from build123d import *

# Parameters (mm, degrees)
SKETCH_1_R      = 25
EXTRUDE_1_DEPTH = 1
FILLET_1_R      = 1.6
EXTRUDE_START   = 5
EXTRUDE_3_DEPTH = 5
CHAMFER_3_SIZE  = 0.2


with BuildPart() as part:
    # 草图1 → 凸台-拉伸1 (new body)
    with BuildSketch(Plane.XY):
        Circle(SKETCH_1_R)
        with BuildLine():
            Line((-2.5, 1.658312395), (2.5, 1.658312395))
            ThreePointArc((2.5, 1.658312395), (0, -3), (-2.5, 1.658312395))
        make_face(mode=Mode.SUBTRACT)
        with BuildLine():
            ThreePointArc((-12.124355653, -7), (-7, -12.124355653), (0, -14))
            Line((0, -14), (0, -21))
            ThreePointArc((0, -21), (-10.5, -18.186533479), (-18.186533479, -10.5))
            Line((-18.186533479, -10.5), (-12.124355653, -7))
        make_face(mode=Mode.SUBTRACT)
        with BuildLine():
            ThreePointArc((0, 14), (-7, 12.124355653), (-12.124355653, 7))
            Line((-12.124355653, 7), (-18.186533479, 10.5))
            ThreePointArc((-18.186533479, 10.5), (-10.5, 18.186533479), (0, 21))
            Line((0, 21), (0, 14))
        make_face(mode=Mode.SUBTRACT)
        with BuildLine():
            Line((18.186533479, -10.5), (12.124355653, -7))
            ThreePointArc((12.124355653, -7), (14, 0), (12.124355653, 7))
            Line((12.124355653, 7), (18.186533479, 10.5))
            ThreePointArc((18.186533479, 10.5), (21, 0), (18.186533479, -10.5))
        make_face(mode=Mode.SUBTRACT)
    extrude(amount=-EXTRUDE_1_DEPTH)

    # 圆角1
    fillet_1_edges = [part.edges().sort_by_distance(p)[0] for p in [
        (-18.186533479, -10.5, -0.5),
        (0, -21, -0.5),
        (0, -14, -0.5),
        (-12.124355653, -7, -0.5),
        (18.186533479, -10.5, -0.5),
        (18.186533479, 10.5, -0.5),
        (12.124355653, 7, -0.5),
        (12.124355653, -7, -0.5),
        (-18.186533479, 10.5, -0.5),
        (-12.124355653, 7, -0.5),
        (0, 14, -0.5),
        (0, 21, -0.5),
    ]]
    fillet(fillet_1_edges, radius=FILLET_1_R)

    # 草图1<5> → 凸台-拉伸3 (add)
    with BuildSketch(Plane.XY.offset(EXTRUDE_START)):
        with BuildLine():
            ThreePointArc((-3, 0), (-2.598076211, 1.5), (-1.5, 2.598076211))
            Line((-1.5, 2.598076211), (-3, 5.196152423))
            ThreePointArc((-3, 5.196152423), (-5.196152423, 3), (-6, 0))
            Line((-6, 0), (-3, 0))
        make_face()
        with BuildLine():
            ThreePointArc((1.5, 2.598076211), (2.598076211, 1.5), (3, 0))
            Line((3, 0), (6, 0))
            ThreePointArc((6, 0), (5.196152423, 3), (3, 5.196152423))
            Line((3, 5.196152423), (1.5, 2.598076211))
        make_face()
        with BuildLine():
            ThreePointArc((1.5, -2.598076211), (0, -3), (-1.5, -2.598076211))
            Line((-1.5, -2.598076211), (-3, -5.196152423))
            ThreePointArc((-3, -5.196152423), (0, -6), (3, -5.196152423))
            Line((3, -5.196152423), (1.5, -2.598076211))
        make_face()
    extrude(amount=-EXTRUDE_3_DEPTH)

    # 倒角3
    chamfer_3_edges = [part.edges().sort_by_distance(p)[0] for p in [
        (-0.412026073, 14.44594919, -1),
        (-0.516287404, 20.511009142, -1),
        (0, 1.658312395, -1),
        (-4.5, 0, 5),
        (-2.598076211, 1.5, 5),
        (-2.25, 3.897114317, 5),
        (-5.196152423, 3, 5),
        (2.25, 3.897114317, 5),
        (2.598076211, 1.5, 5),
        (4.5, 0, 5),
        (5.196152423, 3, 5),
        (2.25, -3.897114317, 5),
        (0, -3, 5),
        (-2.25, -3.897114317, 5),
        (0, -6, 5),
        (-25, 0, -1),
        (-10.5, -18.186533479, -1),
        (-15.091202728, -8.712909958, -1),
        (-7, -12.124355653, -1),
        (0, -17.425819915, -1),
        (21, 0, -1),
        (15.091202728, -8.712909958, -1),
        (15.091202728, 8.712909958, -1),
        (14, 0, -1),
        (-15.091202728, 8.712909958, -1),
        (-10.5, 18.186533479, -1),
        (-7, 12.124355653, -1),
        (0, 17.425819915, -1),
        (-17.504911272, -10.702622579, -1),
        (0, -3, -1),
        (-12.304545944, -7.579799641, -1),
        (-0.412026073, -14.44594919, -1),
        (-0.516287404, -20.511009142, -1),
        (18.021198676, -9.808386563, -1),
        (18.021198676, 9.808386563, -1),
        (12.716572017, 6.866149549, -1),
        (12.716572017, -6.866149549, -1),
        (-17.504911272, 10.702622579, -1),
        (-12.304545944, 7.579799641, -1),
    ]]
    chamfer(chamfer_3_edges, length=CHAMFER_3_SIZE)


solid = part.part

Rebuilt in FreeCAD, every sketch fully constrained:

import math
import FreeCAD as App
import Part
import Sketcher
Q = App.Units.Quantity


def edges_at(feature, points):
    """Names of the edges that pass closest to the given points."""
    edges = feature.Shape.Edges
    near = lambda p: min(range(len(edges)), key=lambda i: edges[i].distToShape(Part.Vertex(*p))[0])
    return sorted({f"Edge{near(p) + 1}" for p in points})

doc = App.newDocument("Part")
body = doc.addObject("PartDesign::Body", "Body")

sketch1 = body.newObject("Sketcher::SketchObject", "Sketch")
sketch1.AttachmentSupport = (doc.getObject("XY_Plane"), [""])
sketch1.MapMode = "FlatFace"
sketch1.addGeometry(Part.Circle(App.Vector(0, 0, 0), App.Vector(0, 0, 1), 25), False)
sketch1.addGeometry(Part.LineSegment(App.Vector(-18.2, -10.5, 0), App.Vector(-12.1, -7, 0)), False)
sketch1.addGeometry(Part.ArcOfCircle(Part.Circle(App.Vector(0, 0, 0), App.Vector(0, 0, 1), 14), math.radians(-150), math.radians(-90)), False)
sketch1.addGeometry(Part.LineSegment(App.Vector(0, -14, 0), App.Vector(0, -21, 0)), False)
sketch1.addGeometry(Part.ArcOfCircle(Part.Circle(App.Vector(0, 0, 0), App.Vector(0, 0, 1), 21), math.radians(-150), math.radians(-90)), False)
sketch1.addGeometry(Part.ArcOfCircle(Part.Circle(App.Vector(0, 0, 0), App.Vector(0, 0, 1), 3), math.radians(146), math.radians(394)), False)
sketch1.addGeometry(Part.LineSegment(App.Vector(-2.5, 1.7, 0), App.Vector(2.5, 1.7, 0)), False)
sketch1.addGeometry(Part.LineSegment(App.Vector(0, 21, 0), App.Vector(0, 14, 0)), False)
sketch1.addGeometry(Part.ArcOfCircle(Part.Circle(App.Vector(0, 0, 0), App.Vector(0, 0, 1), 14), math.radians(90), math.radians(150)), False)
sketch1.addGeometry(Part.LineSegment(App.Vector(-12.1, 7, 0), App.Vector(-18.2, 10.5, 0)), False)
sketch1.addGeometry(Part.ArcOfCircle(Part.Circle(App.Vector(0, 0, 0), App.Vector(0, 0, 1), 21), math.radians(90), math.radians(150)), False)
sketch1.addGeometry(Part.ArcOfCircle(Part.Circle(App.Vector(0, 0, 0), App.Vector(0, 0, 1), 21), math.radians(-30), math.radians(30)), False)
sketch1.addGeometry(Part.LineSegment(App.Vector(18.2, -10.5, 0), App.Vector(12.1, -7, 0)), False)
sketch1.addGeometry(Part.ArcOfCircle(Part.Circle(App.Vector(0, 0, 0), App.Vector(0, 0, 1), 14), math.radians(-30), math.radians(30)), False)
sketch1.addGeometry(Part.LineSegment(App.Vector(12.1, 7, 0), App.Vector(18.2, 10.5, 0)), False)
sketch1.addConstraint(Sketcher.Constraint("Coincident", 1, 2, 2, 1))
sketch1.addConstraint(Sketcher.Constraint("Coincident", 2, 2, 3, 1))
sketch1.addConstraint(Sketcher.Constraint("Coincident", 3, 2, 4, 2))
sketch1.addConstraint(Sketcher.Constraint("Coincident", 4, 1, 1, 1))
sketch1.addConstraint(Sketcher.Constraint("Coincident", 5, 1, 6, 1))
sketch1.addConstraint(Sketcher.Constraint("Coincident", 6, 2, 5, 2))
sketch1.addConstraint(Sketcher.Constraint("Coincident", 7, 2, 8, 1))
sketch1.addConstraint(Sketcher.Constraint("Coincident", 8, 2, 9, 1))
sketch1.addConstraint(Sketcher.Constraint("Coincident", 9, 2, 10, 2))
sketch1.addConstraint(Sketcher.Constraint("Coincident", 10, 1, 7, 1))
sketch1.addConstraint(Sketcher.Constraint("Coincident", 11, 1, 12, 1))
sketch1.addConstraint(Sketcher.Constraint("Coincident", 12, 2, 13, 1))
sketch1.addConstraint(Sketcher.Constraint("Coincident", 13, 2, 14, 1))
sketch1.addConstraint(Sketcher.Constraint("Coincident", 14, 2, 11, 2))
sketch1.addConstraint(Sketcher.Constraint("Vertical", 3))
sketch1.addConstraint(Sketcher.Constraint("Horizontal", 6))
sketch1.addConstraint(Sketcher.Constraint("Vertical", 7))
sketch1.addConstraint(Sketcher.Constraint("Coincident", 0, 3, -1, 1))
sketch1.addConstraint(Sketcher.Constraint("Coincident", 2, 3, -1, 1))
sketch1.addConstraint(Sketcher.Constraint("Coincident", 4, 3, -1, 1))
sketch1.addConstraint(Sketcher.Constraint("Coincident", 5, 3, -1, 1))
sketch1.addConstraint(Sketcher.Constraint("Coincident", 8, 3, -1, 1))
sketch1.addConstraint(Sketcher.Constraint("Coincident", 10, 3, -1, 1))
sketch1.addConstraint(Sketcher.Constraint("Coincident", 11, 3, -1, 1))
sketch1.addConstraint(Sketcher.Constraint("Coincident", 13, 3, -1, 1))
sketch1.addConstraint(Sketcher.Constraint("Equal", 2, 8))
sketch1.addConstraint(Sketcher.Constraint("Equal", 4, 10))
sketch1.addConstraint(Sketcher.Constraint("Equal", 10, 11))
sketch1.addConstraint(Sketcher.Constraint("Equal", 8, 13))
sketch1.addConstraint(Sketcher.Constraint("PointOnObject", 2, 2, -2))
sketch1.addConstraint(Sketcher.Constraint("PointOnObject", 7, 2, -2))
sketch1.addConstraint(Sketcher.Constraint("Parallel", 9, 12))
sketch1.addConstraint(Sketcher.Constraint("Parallel", 1, 14))
sketch1.addConstraint(Sketcher.Constraint("Horizontal", 4, 1, 11, 1))
sketch1.addConstraint(Sketcher.Constraint("Horizontal", 1, 2, 12, 2))
sketch1.addConstraint(Sketcher.Constraint("Horizontal", 8, 2, 13, 2))
sketch1.addConstraint(Sketcher.Constraint("Vertical", 1, 2, 8, 2))
sketch1.addConstraint(Sketcher.Constraint("Diameter", 0, Q("50 mm")))
sketch1.addConstraint(Sketcher.Constraint("Radius", 2, Q("14 mm")))
sketch1.addConstraint(Sketcher.Constraint("Radius", 4, Q("21 mm")))
sketch1.addConstraint(Sketcher.Constraint("Radius", 5, Q("3 mm")))
sketch1.addConstraint(Sketcher.Constraint("DistanceX", 6, 1, 6, 2, Q("5 mm")))
sketch1.addConstraint(Sketcher.Constraint("Angle", 1, Q("30 deg")))
sketch1.addConstraint(Sketcher.Constraint("DistanceY", 1, 2, -1, 1, Q("7 mm")))
pad1 = body.newObject("PartDesign::Pad", "Pad")
pad1.Profile = sketch1
pad1.Length = 1
pad1.Reversed = True
doc.recompute()

fillet = body.newObject("PartDesign::Fillet", "Fillet")
fillet.Base = (pad1, edges_at(pad1, [
    (-18.187, -10.5, -0.5),
    (0, -21, -0.5),
    (0, -14, -0.5),
    (-12.124, -7, -0.5),
    (18.187, -10.5, -0.5),
    (18.187, 10.5, -0.5),
    (12.124, 7, -0.5),
    (12.124, -7, -0.5),
    (-18.187, 10.5, -0.5),
    (-12.124, 7, -0.5),
    (0, 14, -0.5),
    (0, 21, -0.5),
]))
fillet.Radius = 1.6

sketch2 = body.newObject("Sketcher::SketchObject", "Sketch001")
sketch2.AttachmentSupport = (doc.getObject("XY_Plane"), [""])
sketch2.MapMode = "FlatFace"
sketch2.AttachmentOffset = App.Placement(App.Vector(0, 0, 5), App.Rotation())
sketch2.addGeometry(Part.ArcOfCircle(Part.Circle(App.Vector(0, 0, 0), App.Vector(0, 0, 1), 3), math.radians(120), math.radians(180)), False)
sketch2.addGeometry(Part.LineSegment(App.Vector(-1.5, 2.6, 0), App.Vector(-3, 5.2, 0)), False)
sketch2.addGeometry(Part.ArcOfCircle(Part.Circle(App.Vector(0, 0, 0), App.Vector(0, 0, 1), 6), math.radians(120), math.radians(180)), False)
sketch2.addGeometry(Part.LineSegment(App.Vector(-6, 0, 0), App.Vector(-3, 0, 0)), False)
sketch2.addGeometry(Part.ArcOfCircle(Part.Circle(App.Vector(0, 0, 0), App.Vector(0, 0, 1), 3), math.radians(0), math.radians(60)), False)
sketch2.addGeometry(Part.LineSegment(App.Vector(3, 0, 0), App.Vector(6, 0, 0)), False)
sketch2.addGeometry(Part.ArcOfCircle(Part.Circle(App.Vector(0, 0, 0), App.Vector(0, 0, 1), 6), math.radians(0), math.radians(60)), False)
sketch2.addGeometry(Part.LineSegment(App.Vector(3, 5.2, 0), App.Vector(1.5, 2.6, 0)), False)
sketch2.addGeometry(Part.ArcOfCircle(Part.Circle(App.Vector(0, 0, 0), App.Vector(0, 0, 1), 3), math.radians(-120), math.radians(-60)), False)
sketch2.addGeometry(Part.LineSegment(App.Vector(-1.5, -2.6, 0), App.Vector(-3, -5.2, 0)), False)
sketch2.addGeometry(Part.ArcOfCircle(Part.Circle(App.Vector(0, 0, 0), App.Vector(0, 0, 1), 6), math.radians(-120), math.radians(-60)), False)
sketch2.addGeometry(Part.LineSegment(App.Vector(3, -5.2, 0), App.Vector(1.5, -2.6, 0)), False)
sketch2.addConstraint(Sketcher.Constraint("Coincident", 0, 1, 1, 1))
sketch2.addConstraint(Sketcher.Constraint("Coincident", 1, 2, 2, 1))
sketch2.addConstraint(Sketcher.Constraint("Coincident", 2, 2, 3, 1))
sketch2.addConstraint(Sketcher.Constraint("Coincident", 3, 2, 0, 2))
sketch2.addConstraint(Sketcher.Constraint("Coincident", 4, 1, 5, 1))
sketch2.addConstraint(Sketcher.Constraint("Coincident", 5, 2, 6, 1))
sketch2.addConstraint(Sketcher.Constraint("Coincident", 6, 2, 7, 1))
sketch2.addConstraint(Sketcher.Constraint("Coincident", 7, 2, 4, 2))
sketch2.addConstraint(Sketcher.Constraint("Coincident", 8, 1, 9, 1))
sketch2.addConstraint(Sketcher.Constraint("Coincident", 9, 2, 10, 1))
sketch2.addConstraint(Sketcher.Constraint("Coincident", 10, 2, 11, 1))
sketch2.addConstraint(Sketcher.Constraint("Coincident", 11, 2, 8, 2))
sketch2.addConstraint(Sketcher.Constraint("Horizontal", 3))
sketch2.addConstraint(Sketcher.Constraint("Horizontal", 5))
sketch2.addConstraint(Sketcher.Constraint("Coincident", 0, 3, -1, 1))
sketch2.addConstraint(Sketcher.Constraint("Coincident", 2, 3, -1, 1))
sketch2.addConstraint(Sketcher.Constraint("Coincident", 4, 3, -1, 1))
sketch2.addConstraint(Sketcher.Constraint("Coincident", 6, 3, -1, 1))
sketch2.addConstraint(Sketcher.Constraint("Coincident", 8, 3, -1, 1))
sketch2.addConstraint(Sketcher.Constraint("Coincident", 10, 3, -1, 1))
sketch2.addConstraint(Sketcher.Constraint("Equal", 0, 4))
sketch2.addConstraint(Sketcher.Constraint("Equal", 2, 6))
sketch2.addConstraint(Sketcher.Constraint("Equal", 4, 8))
sketch2.addConstraint(Sketcher.Constraint("Equal", 6, 10))
sketch2.addConstraint(Sketcher.Constraint("PointOnObject", 2, 2, -1))
sketch2.addConstraint(Sketcher.Constraint("PointOnObject", 4, 1, -1))
sketch2.addConstraint(Sketcher.Constraint("Parallel", 7, 9))
sketch2.addConstraint(Sketcher.Constraint("Parallel", 1, 11))
sketch2.addConstraint(Sketcher.Constraint("Horizontal", 1, 2, 6, 2))
sketch2.addConstraint(Sketcher.Constraint("Horizontal", 0, 1, 7, 2))
sketch2.addConstraint(Sketcher.Constraint("Horizontal", 9, 2, 10, 2))
sketch2.addConstraint(Sketcher.Constraint("Vertical", 1, 2, 3, 2))
sketch2.addConstraint(Sketcher.Constraint("Vertical", 0, 1, 8, 1))
sketch2.addConstraint(Sketcher.Constraint("Radius", 0, Q("3 mm")))
sketch2.addConstraint(Sketcher.Constraint("Radius", 2, Q("6 mm")))
sketch2.addConstraint(Sketcher.Constraint("Angle", 1, Q("120 deg")))
pad2 = body.newObject("PartDesign::Pad", "Pad001")
pad2.Profile = sketch2
pad2.Length = 5
pad2.Reversed = True
doc.recompute()

chamfer = body.newObject("PartDesign::Chamfer", "Chamfer")
chamfer.Base = (pad2, edges_at(pad2, [
    (-0.412, 14.446, -1),
    (-0.516, 20.511, -1),
    (0, 1.658, -1),
    (-4.5, 0, 5),
    (-2.598, 1.5, 5),
    (-2.25, 3.897, 5),
    (-5.196, 3, 5),
    (2.25, 3.897, 5),
    (2.598, 1.5, 5),
    (4.5, 0, 5),
    (5.196, 3, 5),
    (2.25, -3.897, 5),
    (0, -3, 5),
    (-2.25, -3.897, 5),
    (0, -6, 5),
    (-25, 0, -1),
    (-10.5, -18.187, -1),
    (-15.091, -8.713, -1),
    (-7, -12.124, -1),
    (0, -17.426, -1),
    (21, 0, -1),
    (15.091, -8.713, -1),
    (15.091, 8.713, -1),
    (14, 0, -1),
    (-15.091, 8.713, -1),
    (-10.5, 18.187, -1),
    (-7, 12.124, -1),
    (0, 17.426, -1),
    (-17.505, -10.703, -1),
    (0, -3, -1),
    (-12.305, -7.58, -1),
    (-0.412, -14.446, -1),
    (-0.516, -20.511, -1),
    (18.021, -9.808, -1),
    (18.021, 9.808, -1),
    (12.717, 6.866, -1),
    (12.717, -6.866, -1),
    (-17.505, 10.703, -1),
    (-12.305, 7.58, -1),
]))
chamfer.Size = 0.2

doc.recompute()
